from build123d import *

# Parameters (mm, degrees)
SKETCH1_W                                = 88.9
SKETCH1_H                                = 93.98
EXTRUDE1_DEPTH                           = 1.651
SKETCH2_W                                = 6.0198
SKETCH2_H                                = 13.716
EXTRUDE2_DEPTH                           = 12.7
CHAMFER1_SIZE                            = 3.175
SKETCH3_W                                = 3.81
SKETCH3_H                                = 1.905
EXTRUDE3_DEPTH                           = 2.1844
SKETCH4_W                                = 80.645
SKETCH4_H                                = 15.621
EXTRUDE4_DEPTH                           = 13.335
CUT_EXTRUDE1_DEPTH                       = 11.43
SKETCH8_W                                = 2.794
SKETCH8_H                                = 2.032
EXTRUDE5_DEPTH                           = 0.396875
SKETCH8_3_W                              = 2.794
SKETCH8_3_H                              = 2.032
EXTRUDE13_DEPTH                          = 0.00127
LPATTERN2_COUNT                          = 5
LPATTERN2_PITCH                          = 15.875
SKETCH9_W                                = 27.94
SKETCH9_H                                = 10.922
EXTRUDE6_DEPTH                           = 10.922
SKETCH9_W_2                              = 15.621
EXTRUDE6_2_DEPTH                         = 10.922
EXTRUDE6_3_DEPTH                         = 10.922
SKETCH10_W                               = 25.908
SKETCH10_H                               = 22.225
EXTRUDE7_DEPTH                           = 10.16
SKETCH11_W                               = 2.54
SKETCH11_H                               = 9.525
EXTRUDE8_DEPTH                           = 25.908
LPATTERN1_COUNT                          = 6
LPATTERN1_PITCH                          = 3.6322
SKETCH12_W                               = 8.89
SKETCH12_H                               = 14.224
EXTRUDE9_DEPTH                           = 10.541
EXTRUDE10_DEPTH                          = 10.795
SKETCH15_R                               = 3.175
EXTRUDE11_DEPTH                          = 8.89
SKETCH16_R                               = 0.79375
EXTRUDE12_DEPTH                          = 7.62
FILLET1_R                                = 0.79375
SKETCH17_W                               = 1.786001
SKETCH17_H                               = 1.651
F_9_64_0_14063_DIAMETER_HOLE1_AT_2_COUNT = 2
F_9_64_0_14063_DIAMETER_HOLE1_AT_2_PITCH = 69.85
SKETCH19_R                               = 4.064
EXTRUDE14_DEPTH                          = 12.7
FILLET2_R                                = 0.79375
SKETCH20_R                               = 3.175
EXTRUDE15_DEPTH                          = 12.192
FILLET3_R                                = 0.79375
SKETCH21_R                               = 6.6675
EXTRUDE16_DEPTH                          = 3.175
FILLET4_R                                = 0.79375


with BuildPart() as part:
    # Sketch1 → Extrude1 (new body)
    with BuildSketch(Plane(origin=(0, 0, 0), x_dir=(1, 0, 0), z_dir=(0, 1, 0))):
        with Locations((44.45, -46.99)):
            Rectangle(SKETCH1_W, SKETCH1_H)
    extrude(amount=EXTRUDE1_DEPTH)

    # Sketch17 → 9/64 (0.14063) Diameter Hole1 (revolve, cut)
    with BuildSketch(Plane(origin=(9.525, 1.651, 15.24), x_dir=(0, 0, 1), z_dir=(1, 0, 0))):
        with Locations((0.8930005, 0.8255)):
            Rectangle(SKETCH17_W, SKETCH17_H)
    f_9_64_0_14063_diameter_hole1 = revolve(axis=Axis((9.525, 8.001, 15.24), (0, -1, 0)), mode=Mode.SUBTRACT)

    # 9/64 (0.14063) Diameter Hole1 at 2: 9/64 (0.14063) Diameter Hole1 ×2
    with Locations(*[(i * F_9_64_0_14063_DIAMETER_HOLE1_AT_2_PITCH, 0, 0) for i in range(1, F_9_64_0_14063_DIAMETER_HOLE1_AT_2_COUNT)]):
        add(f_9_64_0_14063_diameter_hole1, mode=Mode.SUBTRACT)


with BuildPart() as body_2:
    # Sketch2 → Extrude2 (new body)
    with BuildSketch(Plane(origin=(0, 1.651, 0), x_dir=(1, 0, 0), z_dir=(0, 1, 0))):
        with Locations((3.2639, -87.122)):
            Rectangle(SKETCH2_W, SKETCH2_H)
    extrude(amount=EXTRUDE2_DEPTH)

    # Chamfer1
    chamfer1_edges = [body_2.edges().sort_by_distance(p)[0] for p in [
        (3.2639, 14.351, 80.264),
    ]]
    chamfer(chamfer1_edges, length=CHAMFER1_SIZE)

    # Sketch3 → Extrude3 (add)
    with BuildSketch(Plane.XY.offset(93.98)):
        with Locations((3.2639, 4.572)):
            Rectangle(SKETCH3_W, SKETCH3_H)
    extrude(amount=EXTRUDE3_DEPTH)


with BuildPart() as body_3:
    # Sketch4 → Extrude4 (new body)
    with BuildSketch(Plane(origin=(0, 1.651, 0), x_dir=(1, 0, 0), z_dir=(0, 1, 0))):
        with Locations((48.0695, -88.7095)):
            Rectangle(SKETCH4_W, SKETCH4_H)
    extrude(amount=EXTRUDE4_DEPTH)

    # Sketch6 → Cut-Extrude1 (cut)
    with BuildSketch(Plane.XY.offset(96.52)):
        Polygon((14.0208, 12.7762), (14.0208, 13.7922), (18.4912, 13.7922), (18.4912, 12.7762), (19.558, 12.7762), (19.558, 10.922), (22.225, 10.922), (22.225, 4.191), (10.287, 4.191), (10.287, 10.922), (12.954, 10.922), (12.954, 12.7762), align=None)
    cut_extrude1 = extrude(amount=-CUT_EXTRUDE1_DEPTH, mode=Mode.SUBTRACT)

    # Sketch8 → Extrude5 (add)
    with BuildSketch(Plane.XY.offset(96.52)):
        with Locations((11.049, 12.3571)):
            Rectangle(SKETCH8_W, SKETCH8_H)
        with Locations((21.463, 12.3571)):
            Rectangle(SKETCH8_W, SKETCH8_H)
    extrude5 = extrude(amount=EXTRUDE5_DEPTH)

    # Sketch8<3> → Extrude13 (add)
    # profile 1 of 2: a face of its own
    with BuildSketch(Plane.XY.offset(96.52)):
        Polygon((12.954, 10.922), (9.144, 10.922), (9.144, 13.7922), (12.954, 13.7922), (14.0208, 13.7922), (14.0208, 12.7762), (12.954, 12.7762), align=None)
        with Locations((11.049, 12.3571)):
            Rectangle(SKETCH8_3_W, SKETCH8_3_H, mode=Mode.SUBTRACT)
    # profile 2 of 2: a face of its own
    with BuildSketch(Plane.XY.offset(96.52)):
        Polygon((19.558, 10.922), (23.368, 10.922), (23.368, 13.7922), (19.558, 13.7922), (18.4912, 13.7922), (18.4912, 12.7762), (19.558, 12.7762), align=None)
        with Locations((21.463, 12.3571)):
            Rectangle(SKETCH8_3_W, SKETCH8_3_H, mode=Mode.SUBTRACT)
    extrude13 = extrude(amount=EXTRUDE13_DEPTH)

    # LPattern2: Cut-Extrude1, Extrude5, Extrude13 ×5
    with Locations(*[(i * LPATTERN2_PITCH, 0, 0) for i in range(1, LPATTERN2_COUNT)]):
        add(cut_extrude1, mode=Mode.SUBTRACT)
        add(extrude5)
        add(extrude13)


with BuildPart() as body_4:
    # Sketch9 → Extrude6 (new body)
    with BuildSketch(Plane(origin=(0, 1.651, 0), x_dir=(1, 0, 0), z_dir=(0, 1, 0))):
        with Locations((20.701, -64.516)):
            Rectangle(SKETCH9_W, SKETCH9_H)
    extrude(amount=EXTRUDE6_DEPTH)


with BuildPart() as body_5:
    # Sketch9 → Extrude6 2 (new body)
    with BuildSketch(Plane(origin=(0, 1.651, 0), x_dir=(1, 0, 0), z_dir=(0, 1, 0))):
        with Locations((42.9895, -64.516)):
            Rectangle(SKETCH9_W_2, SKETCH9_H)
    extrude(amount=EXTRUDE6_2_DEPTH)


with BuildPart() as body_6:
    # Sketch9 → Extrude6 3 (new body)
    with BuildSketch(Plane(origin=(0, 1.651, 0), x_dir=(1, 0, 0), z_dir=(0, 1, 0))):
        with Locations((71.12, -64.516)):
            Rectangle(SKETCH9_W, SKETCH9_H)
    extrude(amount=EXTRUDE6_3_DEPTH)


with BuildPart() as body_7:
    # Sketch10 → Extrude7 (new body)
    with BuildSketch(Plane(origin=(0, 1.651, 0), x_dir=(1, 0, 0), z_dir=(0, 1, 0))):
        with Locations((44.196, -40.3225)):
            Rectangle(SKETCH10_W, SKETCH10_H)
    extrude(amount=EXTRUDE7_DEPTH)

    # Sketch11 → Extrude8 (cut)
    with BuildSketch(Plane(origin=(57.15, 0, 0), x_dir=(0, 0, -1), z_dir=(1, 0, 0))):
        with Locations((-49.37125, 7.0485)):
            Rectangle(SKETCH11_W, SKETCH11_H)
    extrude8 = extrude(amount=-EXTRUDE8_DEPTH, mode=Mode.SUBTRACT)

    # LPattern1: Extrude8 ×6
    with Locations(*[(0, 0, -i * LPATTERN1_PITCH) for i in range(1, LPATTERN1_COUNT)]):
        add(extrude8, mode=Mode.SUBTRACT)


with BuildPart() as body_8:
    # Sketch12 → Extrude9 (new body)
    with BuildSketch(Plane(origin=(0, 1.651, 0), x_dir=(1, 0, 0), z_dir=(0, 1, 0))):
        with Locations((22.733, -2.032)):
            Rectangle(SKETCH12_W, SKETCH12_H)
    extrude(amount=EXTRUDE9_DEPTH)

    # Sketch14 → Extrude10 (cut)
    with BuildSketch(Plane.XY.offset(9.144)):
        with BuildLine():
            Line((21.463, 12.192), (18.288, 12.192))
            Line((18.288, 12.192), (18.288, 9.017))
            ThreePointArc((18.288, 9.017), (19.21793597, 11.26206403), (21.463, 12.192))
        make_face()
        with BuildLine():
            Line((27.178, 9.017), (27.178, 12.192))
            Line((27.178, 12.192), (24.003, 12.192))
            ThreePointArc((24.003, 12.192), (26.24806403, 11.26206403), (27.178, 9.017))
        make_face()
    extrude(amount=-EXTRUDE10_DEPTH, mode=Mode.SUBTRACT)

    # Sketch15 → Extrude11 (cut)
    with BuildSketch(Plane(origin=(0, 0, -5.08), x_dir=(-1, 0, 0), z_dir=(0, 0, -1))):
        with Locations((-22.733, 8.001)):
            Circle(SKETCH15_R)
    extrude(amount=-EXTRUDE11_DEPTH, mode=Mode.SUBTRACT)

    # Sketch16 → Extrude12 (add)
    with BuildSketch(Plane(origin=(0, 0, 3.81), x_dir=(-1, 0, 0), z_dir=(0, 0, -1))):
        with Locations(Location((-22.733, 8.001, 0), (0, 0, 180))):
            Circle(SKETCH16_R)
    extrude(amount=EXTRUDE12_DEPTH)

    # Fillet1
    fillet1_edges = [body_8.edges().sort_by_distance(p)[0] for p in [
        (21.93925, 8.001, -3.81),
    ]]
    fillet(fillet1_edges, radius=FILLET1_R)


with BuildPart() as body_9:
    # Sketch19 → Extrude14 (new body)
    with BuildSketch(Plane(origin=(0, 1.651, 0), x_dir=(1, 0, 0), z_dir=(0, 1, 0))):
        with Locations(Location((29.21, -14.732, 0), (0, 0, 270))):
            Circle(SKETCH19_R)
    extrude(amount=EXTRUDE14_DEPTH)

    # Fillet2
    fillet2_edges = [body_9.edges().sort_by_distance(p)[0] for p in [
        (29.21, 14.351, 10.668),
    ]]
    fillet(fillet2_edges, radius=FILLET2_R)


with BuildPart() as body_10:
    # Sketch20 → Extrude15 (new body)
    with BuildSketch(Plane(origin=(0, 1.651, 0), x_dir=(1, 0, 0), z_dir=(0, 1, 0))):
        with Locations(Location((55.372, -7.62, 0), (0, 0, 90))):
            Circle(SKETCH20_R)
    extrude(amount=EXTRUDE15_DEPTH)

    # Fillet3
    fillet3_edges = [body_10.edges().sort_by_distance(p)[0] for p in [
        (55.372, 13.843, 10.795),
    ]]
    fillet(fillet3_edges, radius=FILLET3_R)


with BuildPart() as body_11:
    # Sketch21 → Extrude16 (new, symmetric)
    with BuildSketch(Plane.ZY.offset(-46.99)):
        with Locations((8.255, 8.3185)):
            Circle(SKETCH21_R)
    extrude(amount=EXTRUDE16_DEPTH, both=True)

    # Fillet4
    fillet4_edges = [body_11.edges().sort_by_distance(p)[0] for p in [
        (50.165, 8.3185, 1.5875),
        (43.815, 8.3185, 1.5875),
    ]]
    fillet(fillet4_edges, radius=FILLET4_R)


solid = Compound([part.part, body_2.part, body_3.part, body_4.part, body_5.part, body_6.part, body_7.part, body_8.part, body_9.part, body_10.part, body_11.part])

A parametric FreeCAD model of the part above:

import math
import FreeCAD as App
import Part
import Sketcher

V = App.Vector
Q = App.Units.Quantity


def edges_at(feature, points):
    """Names of the edges that pass closest to the given points."""
    edges = feature.Shape.Edges
    near = lambda p: min(range(len(edges)), key=lambda i: edges[i].distToShape(Part.Vertex(*p))[0])
    return sorted({f"Edge{near(p) + 1}" for p in points})

doc = App.newDocument("Part")
body = doc.addObject("PartDesign::Body", "Body")

# Sketch on XZ plane
sketch1 = doc.addObject("Sketcher::SketchObject", "Sketch")
body.addObject(sketch1)
sketch1.AttachmentSupport = (doc.XZ_Plane, [""])
sketch1.MapMode = "FlatFace"
sketch1.addGeometry([
    Part.LineSegment(V(0, 0, 0), V(0, 94, 0)),
    Part.LineSegment(V(0, 94, 0), V(89, 94, 0)),
    Part.LineSegment(V(89, 94, 0), V(89, 0, 0)),
    Part.LineSegment(V(89, 0, 0), V(0, 0, 0)),
], False)
sketch1.addConstraint([
    Sketcher.Constraint("Coincident", 0, 2, 1, 1),
    Sketcher.Constraint("Coincident", 1, 2, 2, 1),
    Sketcher.Constraint("Coincident", 2, 2, 3, 1),
    Sketcher.Constraint("Coincident", 3, 2, 0, 1),
    Sketcher.Constraint("Vertical", 0),
    Sketcher.Constraint("Horizontal", 1),
    Sketcher.Constraint("Vertical", 2),
    Sketcher.Constraint("Horizontal", 3),
    Sketcher.Constraint("Coincident", 3, 2, -1, 1),
    Sketcher.Constraint("DistanceX", 1, 1, 1, 2, Q("3.5 in")),
    Sketcher.Constraint("DistanceY", 0, 1, 0, 2, Q("3.7 in")),
])
pad1 = doc.addObject("PartDesign::Pad", "Pad")
body.addObject(pad1)
pad1.Profile = sketch1
pad1.Length = Q("0.065 in")
pad1.Reversed = True

# Sketch on YZ plane
sketch2 = doc.addObject("Sketcher::SketchObject", "Sketch001")
body.addObject(sketch2)
sketch2.AttachmentSupport = (doc.YZ_Plane, [""])
sketch2.MapMode = "FlatFace"
sketch2.AttachmentOffset = App.Placement(V(0, 0, 0.375 * 25.4), App.Rotation())
sketch2.addGeometry([
    Part.LineSegment(V(0, 15.2, 0), V(1.7, 15.2, 0)),
    Part.LineSegment(V(1.7, 15.2, 0), V(1.7, 17, 0)),
    Part.LineSegment(V(1.7, 17, 0), V(0, 17, 0)),
    Part.LineSegment(V(0, 17, 0), V(0, 15.2, 0)),
], False)
sketch2.addGeometry(Part.LineSegment(V(1.7, 15.2, 0), V(0, 15.2, 0)), True)  # axis
sketch2.addConstraint([
    Sketcher.Constraint("Coincident", 0, 2, 1, 1),
    Sketcher.Constraint("Coincident", 1, 2, 2, 1),
    Sketcher.Constraint("Coincident", 2, 2, 3, 1),
    Sketcher.Constraint("Coincident", 3, 2, 0, 1),
    Sketcher.Constraint("Horizontal", 0),
    Sketcher.Constraint("Vertical", 1),
    Sketcher.Constraint("Horizontal", 2),
    Sketcher.Constraint("Vertical", 3),
    Sketcher.Constraint("Horizontal", 4),
    Sketcher.Constraint("Coincident", 4, 1, 0, 2),
    Sketcher.Constraint("PointOnObject", 2, 2, -2),
    Sketcher.Constraint("PointOnObject", 4, 2, -2),
    Sketcher.Constraint("DistanceY", -1, 1, 0, 2, Q("0.6 in")),
    Sketcher.Constraint("DistanceX", 0, 1, 0, 2, Q("0.065 in")),
    Sketcher.Constraint("DistanceY", 1, 1, 1, 2, 1.786001),
])
groove = doc.addObject("PartDesign::Groove", "Groove")
body.addObject(groove)
groove.Profile = sketch2
groove.ReferenceAxis = (sketch2, ["Axis0"])
groove.Angle = 360
doc.recompute()

linearpattern = doc.addObject("PartDesign::LinearPattern", "LinearPattern")
body.addObject(linearpattern)
linearpattern.Originals = [groove]
linearpattern.Direction = (doc.X_Axis, [""])
linearpattern.Mode = "offset"
linearpattern.Offset = Q("2.75 in")
linearpattern.Occurrences = 2
body.Tip = linearpattern
body2 = doc.addObject("PartDesign::Body", "Body001")

# Sketch on XZ plane
sketch3 = doc.addObject("Sketcher::SketchObject", "Sketch002")
body2.addObject(sketch3)
sketch3.AttachmentSupport = (doc.getObject("XZ_Plane001"), [""])
sketch3.MapMode = "FlatFace"
sketch3.AttachmentOffset = App.Placement(V(0, 0, -0.065 * 25.4), App.Rotation())
sketch3.addGeometry([
    Part.LineSegment(V(0, 80, 0), V(0, 94, 0)),
    Part.LineSegment(V(0, 94, 0), V(6, 94, 0)),
    Part.LineSegment(V(6, 94, 0), V(6, 80, 0)),
    Part.LineSegment(V(6, 80, 0), V(0, 80, 0)),
], False)
sketch3.addConstraint([
    Sketcher.Constraint("Coincident", 0, 2, 1, 1),
    Sketcher.Constraint("Coincident", 1, 2, 2, 1),
    Sketcher.Constraint("Coincident", 2, 2, 3, 1),
    Sketcher.Constraint("Coincident", 3, 2, 0, 1),
    Sketcher.Constraint("Vertical", 0),
    Sketcher.Constraint("Horizontal", 1),
    Sketcher.Constraint("Vertical", 2),
    Sketcher.Constraint("Horizontal", 3),
    Sketcher.Constraint("DistanceY", 0, 1, 0, 2, Q("0.54 in")),
    Sketcher.Constraint("DistanceY", -1, 1, 0, 2, Q("3.7 in")),
    Sketcher.Constraint("DistanceX", 1, 1, 1, 2, Q("0.237 in")),
    Sketcher.Constraint("DistanceX", -1, 1, 0, 2, Q("0.01 in")),
])
pad2 = doc.addObject("PartDesign::Pad", "Pad001")
body2.addObject(pad2)
pad2.Profile = sketch3
pad2.Length = Q("0.5 in")
pad2.Reversed = True
doc.recompute()

chamfer = doc.addObject("PartDesign::Chamfer", "Chamfer")
body2.addObject(chamfer)
chamfer.Base = (pad2, edges_at(pad2, [(3.264, 14.351, 80.264)]))
chamfer.Size = Q("0.125 in")

# Sketch on XY plane
sketch4 = doc.addObject("Sketcher::SketchObject", "Sketch003")
body2.addObject(sketch4)
sketch4.AttachmentSupport = (doc.getObject("XY_Plane001"), [""])
sketch4.MapMode = "FlatFace"
sketch4.AttachmentOffset = App.Placement(V(0, 0, 3.7 * 25.4), App.Rotation())
sketch4.addGeometry([
    Part.LineSegment(V(1.4, 5.5, 0), V(1.4, 3.6, 0)),
    Part.LineSegment(V(1.4, 3.6, 0), V(5.2, 3.6, 0)),
    Part.LineSegment(V(5.2, 3.6, 0), V(5.2, 5.5, 0)),
    Part.LineSegment(V(5.2, 5.5, 0), V(1.4, 5.5, 0)),
], False)
sketch4.addConstraint([
    Sketcher.Constraint("Coincident", 0, 2, 1, 1),
    Sketcher.Constraint("Coincident", 1, 2, 2, 1),
    Sketcher.Constraint("Coincident", 2, 2, 3, 1),
    Sketcher.Constraint("Coincident", 3, 2, 0, 1),
    Sketcher.Constraint("Vertical", 0),
    Sketcher.Constraint("Horizontal", 1),
    Sketcher.Constraint("Vertical", 2),
    Sketcher.Constraint("Horizontal", 3),
    Sketcher.Constraint("DistanceX", 1, 1, 1, 2, Q("0.15 in")),
    Sketcher.Constraint("DistanceY", 0, 2, 0, 1, Q("0.075 in")),
    Sketcher.Constraint("DistanceX", -1, 1, 0, 2, Q("0.0535 in")),
    Sketcher.Constraint("DistanceY", -1, 1, 0, 2, Q("0.1425 in")),
])
pad3 = doc.addObject("PartDesign::Pad", "Pad002")
body2.addObject(pad3)
pad3.Profile = sketch4
pad3.Length = Q("0.086 in")
body3 = doc.addObject("PartDesign::Body", "Body002")

# Sketch on XZ plane
sketch5 = doc.addObject("Sketcher::SketchObject", "Sketch004")
body3.addObject(sketch5)
sketch5.AttachmentSupport = (doc.getObject("XZ_Plane002"), [""])
sketch5.MapMode = "FlatFace"
sketch5.AttachmentOffset = App.Placement(V(0, 0, -0.065 * 25.4), App.Rotation())
sketch5.addGeometry([
    Part.LineSegment(V(8, 81, 0), V(8, 97, 0)),
    Part.LineSegment(V(8, 97, 0), V(88, 97, 0)),
    Part.LineSegment(V(88, 97, 0), V(88, 81, 0)),
    Part.LineSegment(V(88, 81, 0), V(8, 81, 0)),
], False)
sketch5.addConstraint([
    Sketcher.Constraint("Coincident", 0, 2, 1, 1),
    Sketcher.Constraint("Coincident", 1, 2, 2, 1),
    Sketcher.Constraint("Coincident", 2, 2, 3, 1),
    Sketcher.Constraint("Coincident", 3, 2, 0, 1),
    Sketcher.Constraint("Vertical", 0),
    Sketcher.Constraint("Horizontal", 1),
    Sketcher.Constraint("Vertical", 2),
    Sketcher.Constraint("Horizontal", 3),
    Sketcher.Constraint("DistanceY", -1, 1, 0, 2, Q("3.8 in")),
    Sketcher.Constraint("DistanceX", 1, 1, 1, 2, Q("3.175 in")),
    Sketcher.Constraint("DistanceY", 0, 1, 0, 2, Q("0.615 in")),
    Sketcher.Constraint("DistanceX", -1, 1, 1, 2, Q("3.48 in")),
])
pad4 = doc.addObject("PartDesign::Pad", "Pad003")
body3.addObject(pad4)
pad4.Profile = sketch5
pad4.Length = Q("0.525 in")
pad4.Reversed = True

# Sketch on XY plane
sketch6 = doc.addObject("Sketcher::SketchObject", "Sketch005")
body3.addObject(sketch6)
sketch6.AttachmentSupport = (doc.getObject("XY_Plane002"), [""])
sketch6.MapMode = "FlatFace"
sketch6.AttachmentOffset = App.Placement(V(0, 0, 3.8 * 25.4), App.Rotation())
sketch6.addGeometry([
    Part.LineSegment(V(14, 13.8, 0), V(14, 12.8, 0)),  # 0
    Part.LineSegment(V(14, 12.8, 0), V(13, 12.8, 0)),  # 1
    Part.LineSegment(V(13, 12.8, 0), V(13, 10.9, 0)),  # 2
    Part.LineSegment(V(13, 10.9, 0), V(10.3, 10.9, 0)),  # 3
    Part.LineSegment(V(10.3, 10.9, 0), V(10.3, 4.2, 0)),  # 4
    Part.LineSegment(V(10.3, 4.2, 0), V(22.2, 4.2, 0)),  # 5
    Part.LineSegment(V(22.2, 4.2, 0), V(22.2, 10.9, 0)),  # 6
    Part.LineSegment(V(22.2, 10.9, 0), V(19.6, 10.9, 0)),  # 7
    Part.LineSegment(V(19.6, 10.9, 0), V(19.6, 12.8, 0)),  # 8
    Part.LineSegment(V(19.6, 12.8, 0), V(18.5, 12.8, 0)),  # 9
    Part.LineSegment(V(18.5, 12.8, 0), V(18.5, 13.8, 0)),  # 10
    Part.LineSegment(V(18.5, 13.8, 0), V(14, 13.8, 0)),  # 11
], False)
sketch6.addConstraint([
    Sketcher.Constraint("Coincident", 0, 2, 1, 1),
    Sketcher.Constraint("Coincident", 1, 2, 2, 1),
    Sketcher.Constraint("Coincident", 2, 2, 3, 1),
    Sketcher.Constraint("Coincident", 3, 2, 4, 1),
    Sketcher.Constraint("Coincident", 4, 2, 5, 1),
    Sketcher.Constraint("Coincident", 5, 2, 6, 1),
    Sketcher.Constraint("Coincident", 6, 2, 7, 1),
    Sketcher.Constraint("Coincident", 7, 2, 8, 1),
    Sketcher.Constraint("Coincident", 8, 2, 9, 1),
    Sketcher.Constraint("Coincident", 9, 2, 10, 1),
    Sketcher.Constraint("Coincident", 10, 2, 11, 1),
    Sketcher.Constraint("Coincident", 11, 2, 0, 1),
    Sketcher.Constraint("Vertical", 0),
    Sketcher.Constraint("Horizontal", 1),
    Sketcher.Constraint("Vertical", 2),
    Sketcher.Constraint("Horizontal", 3),
    Sketcher.Constraint("Vertical", 4),
    Sketcher.Constraint("Horizontal", 5),
    Sketcher.Constraint("Vertical", 6),
    Sketcher.Constraint("Horizontal", 7),
    Sketcher.Constraint("Vertical", 8),
    Sketcher.Constraint("Horizontal", 9),
    Sketcher.Constraint("Vertical", 10),
    Sketcher.Constraint("Horizontal", 11),
    Sketcher.Constraint("Horizontal", 3, 2, 6, 2),
    Sketcher.Constraint("Horizontal", 1, 2, 8, 2),
    Sketcher.Constraint("Equal", 3, 7),
    Sketcher.Constraint("Equal", 1, 9),
    Sketcher.Constraint("DistanceX", 5, 1, 5, 2, Q("0.47 in")),
    Sketcher.Constraint("DistanceY", 0, 2, 0, 1, Q("0.04 in")),
    Sketcher.Constraint("DistanceX", 1, 2, 1, 1, Q("0.042 in")),
    Sketcher.Constraint("DistanceX", 3, 2, 3, 1, Q("0.105 in")),
    Sketcher.Constraint("DistanceY", 2, 2, 2, 1, Q("0.073 in")),
    Sketcher.Constraint("DistanceY", 4, 2, 4, 1, Q("0.265 in")),
    Sketcher.Constraint("DistanceX", -1, 1, 1, 2, Q("0.51 in")),
    Sketcher.Constraint("DistanceY", -1, 1, 2, 2, Q("0.43 in")),
])
pocket1 = doc.addObject("PartDesign::Pocket", "Pocket")
body3.addObject(pocket1)
pocket1.Profile = sketch6
pocket1.Length = Q("0.45 in")

# Sketch on XY plane
sketch7 = doc.addObject("Sketcher::SketchObject", "Sketch006")
body3.addObject(sketch7)
sketch7.AttachmentSupport = (doc.getObject("XY_Plane002"), [""])
sketch7.MapMode = "FlatFace"
sketch7.AttachmentOffset = App.Placement(V(0, 0, 3.8 * 25.4), App.Rotation())
sketch7.addGeometry([
    Part.LineSegment(V(9.7, 13.4, 0), V(9.7, 11.3, 0)),  # 0
    Part.LineSegment(V(9.7, 11.3, 0), V(12.4, 11.3, 0)),  # 1
    Part.LineSegment(V(12.4, 11.3, 0), V(12.4, 13.4, 0)),  # 2
    Part.LineSegment(V(12.4, 13.4, 0), V(9.7, 13.4, 0)),  # 3
    Part.LineSegment(V(20.1, 13.4, 0), V(20.1, 11.3, 0)),  # 4
    Part.LineSegment(V(20.1, 11.3, 0), V(22.9, 11.3, 0)),  # 5
    Part.LineSegment(V(22.9, 11.3, 0), V(22.9, 13.4, 0)),  # 6
    Part.LineSegment(V(22.9, 13.4, 0), V(20.1, 13.4, 0)),  # 7
], False)
sketch7.addConstraint([
    Sketcher.Constraint("Coincident", 0, 2, 1, 1),
    Sketcher.Constraint("Coincident", 1, 2, 2, 1),
    Sketcher.Constraint("Coincident", 2, 2, 3, 1),
    Sketcher.Constraint("Coincident", 3, 2, 0, 1),
    Sketcher.Constraint("Coincident", 4, 2, 5, 1),
    Sketcher.Constraint("Coincident", 5, 2, 6, 1),
    Sketcher.Constraint("Coincident", 6, 2, 7, 1),
    Sketcher.Constraint("Coincident", 7, 2, 4, 1),
    Sketcher.Constraint("Vertical", 0),
    Sketcher.Constraint("Horizontal", 1),
    Sketcher.Constraint("Vertical", 2),
    Sketcher.Constraint("Horizontal", 3),
    Sketcher.Constraint("Vertical", 4),
    Sketcher.Constraint("Horizontal", 5),
    Sketcher.Constraint("Vertical", 6),
    Sketcher.Constraint("Horizontal", 7),
    Sketcher.Constraint("Horizontal", 1, 2, 4, 2),
    Sketcher.Constraint("Horizontal", 3, 2, 6, 2),
    Sketcher.Constraint("Equal", 3, 5),
    Sketcher.Constraint("DistanceX", 1, 1, 1, 2, Q("0.11 in")),
    Sketcher.Constraint("DistanceY", 0, 2, 0, 1, Q("0.08 in")),
    Sketcher.Constraint("DistanceX", -1, 1, 5, 2, Q("0.9 in")),
    Sketcher.Constraint("DistanceX", 1, 2, 4, 2, Q("0.3 in")),
    Sketcher.Constraint("DistanceY", -1, 1, 0, 2, Q("0.4465 in")),
])
pad5 = doc.addObject("PartDesign::Pad", "Pad004")
body3.addObject(pad5)
pad5.Profile = sketch7
pad5.Length = Q("0.015625 in")

# Sketch on XY plane
sketch8 = doc.addObject("Sketcher::SketchObject", "Sketch007")
body3.addObject(sketch8)
sketch8.AttachmentSupport = (doc.getObject("XY_Plane002"), [""])
sketch8.MapMode = "FlatFace"
sketch8.AttachmentOffset = App.Placement(V(0, 0, 3.8 * 25.4), App.Rotation())
sketch8.addGeometry([
    Part.LineSegment(V(9.1, 10.9, 0), V(13, 10.9, 0)),  # 0
    Part.LineSegment(V(13, 10.9, 0), V(13, 12.8, 0)),  # 1
    Part.LineSegment(V(13, 12.8, 0), V(14, 12.8, 0)),  # 2
    Part.LineSegment(V(14, 12.8, 0), V(14, 13.8, 0)),  # 3
    Part.LineSegment(V(14, 13.8, 0), V(9.1, 13.8, 0)),  # 4
    Part.LineSegment(V(9.1, 13.8, 0), V(9.1, 10.9, 0)),  # 5
    Part.LineSegment(V(9.7, 11.3, 0), V(9.7, 13.4, 0)),  # 6
    Part.LineSegment(V(9.7, 13.4, 0), V(12.4, 13.4, 0)),  # 7
    Part.LineSegment(V(12.4, 13.4, 0), V(12.4, 11.3, 0)),  # 8
    Part.LineSegment(V(12.4, 11.3, 0), V(9.7, 11.3, 0)),  # 9
    Part.LineSegment(V(19.6, 10.9, 0), V(23.4, 10.9, 0)),  # 10
    Part.LineSegment(V(23.4, 10.9, 0), V(23.4, 13.8, 0)),  # 11
    Part.LineSegment(V(23.4, 13.8, 0), V(18.5, 13.8, 0)),  # 12
    Part.LineSegment(V(18.5, 13.8, 0), V(18.5, 12.8, 0)),  # 13
    Part.LineSegment(V(18.5, 12.8, 0), V(19.6, 12.8, 0)),  # 14
    Part.LineSegment(V(19.6, 12.8, 0), V(19.6, 10.9, 0)),  # 15
    Part.LineSegment(V(22.9, 11.3, 0), V(20.1, 11.3, 0)),  # 16
    Part.LineSegment(V(20.1, 11.3, 0), V(20.1, 13.4, 0)),  # 17
    Part.LineSegment(V(20.1, 13.4, 0), V(22.9, 13.4, 0)),  # 18
    Part.LineSegment(V(22.9, 13.4, 0), V(22.9, 11.3, 0)),  # 19
], False)
sketch8.addConstraint([
    Sketcher.Constraint("Coincident", 0, 2, 1, 1),
    Sketcher.Constraint("Coincident", 1, 2, 2, 1),
    Sketcher.Constraint("Coincident", 2, 2, 3, 1),
    Sketcher.Constraint("Coincident", 3, 2, 4, 1),
    Sketcher.Constraint("Coincident", 4, 2, 5, 1),
    Sketcher.Constraint("Coincident", 5, 2, 0, 1),
    Sketcher.Constraint("Coincident", 6, 2, 7, 1),
    Sketcher.Constraint("Coincident", 7, 2, 8, 1),
    Sketcher.Constraint("Coincident", 8, 2, 9, 1),
    Sketcher.Constraint("Coincident", 9, 2, 6, 1),
    Sketcher.Constraint("Coincident", 10, 2, 11, 1),
    Sketcher.Constraint("Coincident", 11, 2, 12, 1),
    Sketcher.Constraint("Coincident", 12, 2, 13, 1),
    Sketcher.Constraint("Coincident", 13, 2, 14, 1),
    Sketcher.Constraint("Coincident", 14, 2, 15, 1),
    Sketcher.Constraint("Coincident", 15, 2, 10, 1),
    Sketcher.Constraint("Coincident", 16, 2, 17, 1),
    Sketcher.Constraint("Coincident", 17, 2, 18, 1),
    Sketcher.Constraint("Coincident", 18, 2, 19, 1),
    Sketcher.Constraint("Coincident", 19, 2, 16, 1),
    Sketcher.Constraint("Horizontal", 0),
    Sketcher.Constraint("Vertical", 1),
    Sketcher.Constraint("Horizontal", 2),
    Sketcher.Constraint("Vertical", 3),
    Sketcher.Constraint("Horizontal", 4),
    Sketcher.Constraint("Vertical", 5),
    Sketcher.Constraint("Vertical", 6),
    Sketcher.Constraint("Horizontal", 7),
    Sketcher.Constraint("Vertical", 8),
    Sketcher.Constraint("Horizontal", 9),
    Sketcher.Constraint("Horizontal", 10),
    Sketcher.Constraint("Vertical", 11),
    Sketcher.Constraint("Horizontal", 12),
    Sketcher.Constraint("Vertical", 13),
    Sketcher.Constraint("Horizontal", 14),
    Sketcher.Constraint("Vertical", 15),
    Sketcher.Constraint("Horizontal", 16),
    Sketcher.Constraint("Vertical", 17),
    Sketcher.Constraint("Horizontal", 18),
    Sketcher.Constraint("Vertical", 19),
    Sketcher.Constraint("Horizontal", 5, 2, 10, 2),
    Sketcher.Constraint("Horizontal", 4, 2, 11, 2),
    Sketcher.Constraint("Horizontal", 2, 2, 13, 2),
    Sketcher.Constraint("Horizontal", 9, 2, 16, 2),
    Sketcher.Constraint("Horizontal", 7, 2, 17, 2),
    Sketcher.Constraint("Equal", 0, 10),
    Sketcher.Constraint("Equal", 4, 12),
    Sketcher.Constraint("Equal", 9, 16),
    Sketcher.Constraint("DistanceX", 0, 1, 0, 2, Q("0.15 in")),
    Sketcher.Constraint("DistanceX", 7, 1, 7, 2, Q("0.11 in")),
    Sketcher.Constraint("DistanceY", 3, 1, 3, 2, Q("0.04 in")),
    Sketcher.Constraint("DistanceY", 6, 1, 6, 2, Q("0.08 in")),
    Sketcher.Constraint("DistanceX", -1, 1, 18, 2, Q("0.9 in")),
    Sketcher.Constraint("DistanceX", 2, 1, 2, 2, Q("0.042 in")),
    Sketcher.Constraint("DistanceY", 1, 1, 1, 2, Q("0.073 in")),
    Sketcher.Constraint("DistanceX", -1, 1, 0, 2, Q("0.51 in")),
    Sketcher.Constraint("DistanceY", -1, 1, 0, 2, Q("0.43 in")),
    Sketcher.Constraint("DistanceX", -1, 1, 6, 2, Q("0.38 in")),
    Sketcher.Constraint("DistanceX", -1, 1, 10, 2, Q("0.92 in")),
    Sketcher.Constraint("DistanceY", -1, 1, 6, 2, Q("0.5265 in")),
])
pad6 = doc.addObject("PartDesign::Pad", "Pad005")
body3.addObject(pad6)
pad6.Profile = sketch8
pad6.Length = 0.00127
doc.recompute()

linearpattern2 = doc.addObject("PartDesign::LinearPattern", "LinearPattern001")
body3.addObject(linearpattern2)
linearpattern2.Originals = [pocket1, pad5, pad6]
linearpattern2.Direction = (doc.getObject("X_Axis002"), [""])
linearpattern2.Mode = "offset"
linearpattern2.Offset = Q("0.625 in")
linearpattern2.Occurrences = 5
body3.Tip = linearpattern2
body4 = doc.addObject("PartDesign::Body", "Body003")

# Sketch on XZ plane
sketch9 = doc.addObject("Sketcher::SketchObject", "Sketch008")
body4.addObject(sketch9)
sketch9.AttachmentSupport = (doc.getObject("XZ_Plane003"), [""])
sketch9.MapMode = "FlatFace"
sketch9.AttachmentOffset = App.Placement(V(0, 0, -0.065 * 25.4), App.Rotation())
sketch9.addGeometry([
    Part.LineSegment(V(7, 59, 0), V(7, 70, 0)),
    Part.LineSegment(V(7, 70, 0), V(35, 70, 0)),
    Part.LineSegment(V(35, 70, 0), V(35, 59, 0)),
    Part.LineSegment(V(35, 59, 0), V(7, 59, 0)),
], False)
sketch9.addConstraint([
    Sketcher.Constraint("Coincident", 0, 2, 1, 1),
    Sketcher.Constraint("Coincident", 1, 2, 2, 1),
    Sketcher.Constraint("Coincident", 2, 2, 3, 1),
    Sketcher.Constraint("Coincident", 3, 2, 0, 1),
    Sketcher.Constraint("Vertical", 0),
    Sketcher.Constraint("Horizontal", 1),
    Sketcher.Constraint("Vertical", 2),
    Sketcher.Constraint("Horizontal", 3),
    Sketcher.Constraint("DistanceX", 1, 1, 1, 2, Q("1.1 in")),
    Sketcher.Constraint("DistanceY", 0, 1, 0, 2, Q("0.43 in")),
    Sketcher.Constraint("DistanceX", -1, 1, 0, 2, Q("0.265 in")),
    Sketcher.Constraint("DistanceY", -1, 1, 0, 2, Q("2.755 in")),
])
pad7 = doc.addObject("PartDesign::Pad", "Pad006")
body4.addObject(pad7)
pad7.Profile = sketch9
pad7.Length = Q("0.43 in")
pad7.Reversed = True
body5 = doc.addObject("PartDesign::Body", "Body004")

# Sketch on XZ plane
sketch10 = doc.addObject("Sketcher::SketchObject", "Sketch009")
body5.addObject(sketch10)
sketch10.AttachmentSupport = (doc.getObject("XZ_Plane004"), [""])
sketch10.MapMode = "FlatFace"
sketch10.AttachmentOffset = App.Placement(V(0, 0, -0.065 * 25.4), App.Rotation())
sketch10.addGeometry([
    Part.LineSegment(V(35, 59, 0), V(35, 70, 0)),
    Part.LineSegment(V(35, 70, 0), V(51, 70, 0)),
    Part.LineSegment(V(51, 70, 0), V(51, 59, 0)),
    Part.LineSegment(V(51, 59, 0), V(35, 59, 0)),
], False)
sketch10.addConstraint([
    Sketcher.Constraint("Coincident", 0, 2, 1, 1),
    Sketcher.Constraint("Coincident", 1, 2, 2, 1),
    Sketcher.Constraint("Coincident", 2, 2, 3, 1),
    Sketcher.Constraint("Coincident", 3, 2, 0, 1),
    Sketcher.Constraint("Vertical", 0),
    Sketcher.Constraint("Horizontal", 1),
    Sketcher.Constraint("Vertical", 2),
    Sketcher.Constraint("Horizontal", 3),
    Sketcher.Constraint("DistanceX", -1, 1, 1, 2, Q("2 in")),
    Sketcher.Constraint("DistanceY", 0, 1, 0, 2, Q("0.43 in")),
    Sketcher.Constraint("DistanceX", 1, 1, 1, 2, Q("0.615 in")),
    Sketcher.Constraint("DistanceY", -1, 1, 0, 2, Q("2.755 in")),
])
pad8 = doc.addObject("PartDesign::Pad", "Pad007")
body5.addObject(pad8)
pad8.Profile = sketch10
pad8.Length = Q("0.43 in")
pad8.Reversed = True
body6 = doc.addObject("PartDesign::Body", "Body005")

# Sketch on XZ plane
sketch11 = doc.addObject("Sketcher::SketchObject", "Sketch010")
body6.addObject(sketch11)
sketch11.AttachmentSupport = (doc.getObject("XZ_Plane005"), [""])
sketch11.MapMode = "FlatFace"
sketch11.AttachmentOffset = App.Placement(V(0, 0, -0.065 * 25.4), App.Rotation())
sketch11.addGeometry([
    Part.LineSegment(V(57, 59, 0), V(57, 70, 0)),
    Part.LineSegment(V(57, 70, 0), V(85, 70, 0)),
    Part.LineSegment(V(85, 70, 0), V(85, 59, 0)),
    Part.LineSegment(V(85, 59, 0), V(57, 59, 0)),
], False)
sketch11.addConstraint([
    Sketcher.Constraint("Coincident", 0, 2, 1, 1),
    Sketcher.Constraint("Coincident", 1, 2, 2, 1),
    Sketcher.Constraint("Coincident", 2, 2, 3, 1),
    Sketcher.Constraint("Coincident", 3, 2, 0, 1),
    Sketcher.Constraint("Vertical", 0),
    Sketcher.Constraint("Horizontal", 1),
    Sketcher.Constraint("Vertical", 2),
    Sketcher.Constraint("Horizontal", 3),
    Sketcher.Constraint("DistanceX", 1, 1, 1, 2, Q("1.1 in")),
    Sketcher.Constraint("DistanceY", 0, 1, 0, 2, Q("0.43 in")),
    Sketcher.Constraint("DistanceX", -1, 1, 0, 2, Q("2.25 in")),
    Sketcher.Constraint("DistanceY", -1, 1, 0, 2, Q("2.755 in")),
])
pad9 = doc.addObject("PartDesign::Pad", "Pad008")
body6.addObject(pad9)
pad9.Profile = sketch11
pad9.Length = Q("0.43 in")
pad9.Reversed = True
body7 = doc.addObject("PartDesign::Body", "Body006")

# Sketch on XZ plane
sketch12 = doc.addObject("Sketcher::SketchObject", "Sketch011")
body7.addObject(sketch12)
sketch12.AttachmentSupport = (doc.getObject("XZ_Plane006"), [""])
sketch12.MapMode = "FlatFace"
sketch12.AttachmentOffset = App.Placement(V(0, 0, -0.065 * 25.4), App.Rotation())
sketch12.addGeometry([
    Part.LineSegment(V(31, 29, 0), V(31, 51, 0)),
    Part.LineSegment(V(31, 51, 0), V(57, 51, 0)),
    Part.LineSegment(V(57, 51, 0), V(57, 29, 0)),
    Part.LineSegment(V(57, 29, 0), V(31, 29, 0)),
], False)
sketch12.addConstraint([
    Sketcher.Constraint("Coincident", 0, 2, 1, 1),
    Sketcher.Constraint("Coincident", 1, 2, 2, 1),
    Sketcher.Constraint("Coincident", 2, 2, 3, 1),
    Sketcher.Constraint("Coincident", 3, 2, 0, 1),
    Sketcher.Constraint("Vertical", 0),
    Sketcher.Constraint("Horizontal", 1),
    Sketcher.Constraint("Vertical", 2),
    Sketcher.Constraint("Horizontal", 3),
    Sketcher.Constraint("DistanceX", 1, 1, 1, 2, Q("1.02 in")),
    Sketcher.Constraint("DistanceY", 0, 1, 0, 2, Q("0.875 in")),
    Sketcher.Constraint("DistanceX", -1, 1, 0, 2, Q("1.23 in")),
    Sketcher.Constraint("DistanceY", -1, 1, 2, 2, Q("1.15 in")),
])
pad10 = doc.addObject("PartDesign::Pad", "Pad009")
body7.addObject(pad10)
pad10.Profile = sketch12
pad10.Length = Q("0.4 in")
pad10.Reversed = True

# Sketch on YZ plane
sketch13 = doc.addObject("Sketcher::SketchObject", "Sketch012")
body7.addObject(sketch13)
sketch13.AttachmentSupport = (doc.getObject("YZ_Plane006"), [""])
sketch13.MapMode = "FlatFace"
sketch13.AttachmentOffset = App.Placement(V(0, 0, 2.25 * 25.4), App.Rotation())
sketch13.addGeometry([
    Part.LineSegment(V(11.8, 50.6, 0), V(2.3, 50.6, 0)),
    Part.LineSegment(V(2.3, 50.6, 0), V(2.3, 48.1, 0)),
    Part.LineSegment(V(2.3, 48.1, 0), V(11.8, 48.1, 0)),
    Part.LineSegment(V(11.8, 48.1, 0), V(11.8, 50.6, 0)),
], False)
sketch13.addConstraint([
    Sketcher.Constraint("Coincident", 0, 2, 1, 1),
    Sketcher.Constraint("Coincident", 1, 2, 2, 1),
    Sketcher.Constraint("Coincident", 2, 2, 3, 1),
    Sketcher.Constraint("Coincident", 3, 2, 0, 1),
    Sketcher.Constraint("Horizontal", 0),
    Sketcher.Constraint("Vertical", 1),
    Sketcher.Constraint("Horizontal", 2),
    Sketcher.Constraint("Vertical", 3),
    Sketcher.Constraint("DistanceY", 1, 2, 1, 1, Q("0.1 in")),
    Sketcher.Constraint("DistanceX", 0, 2, 0, 1, Q("0.375 in")),
    Sketcher.Constraint("DistanceX", -1, 1, 0, 2, Q("0.09 in")),
    Sketcher.Constraint("DistanceY", -1, 1, 0, 2, 50.64125),
])
pocket2 = doc.addObject("PartDesign::Pocket", "Pocket001")
body7.addObject(pocket2)
pocket2.Profile = sketch13
pocket2.Length = Q("1.02 in")
doc.recompute()

linearpattern3 = doc.addObject("PartDesign::LinearPattern", "LinearPattern002")
body7.addObject(linearpattern3)
linearpattern3.Originals = [pocket2]
linearpattern3.Direction = (doc.getObject("Z_Axis006"), [""])
linearpattern3.Mode = "offset"
linearpattern3.Offset = Q("0.143 in")
linearpattern3.Occurrences = 6
linearpattern3.Reversed = True
body7.Tip = linearpattern3
body8 = doc.addObject("PartDesign::Body", "Body007")

# Sketch on XZ plane
sketch14 = doc.addObject("Sketcher::SketchObject", "Sketch013")
body8.addObject(sketch14)
sketch14.AttachmentSupport = (doc.getObject("XZ_Plane007"), [""])
sketch14.MapMode = "FlatFace"
sketch14.AttachmentOffset = App.Placement(V(0, 0, -0.065 * 25.4), App.Rotation())
sketch14.addGeometry([
    Part.LineSegment(V(18, -5, 0), V(18, 9, 0)),
    Part.LineSegment(V(18, 9, 0), V(27, 9, 0)),
    Part.LineSegment(V(27, 9, 0), V(27, -5, 0)),
    Part.LineSegment(V(27, -5, 0), V(18, -5, 0)),
], False)
sketch14.addConstraint([
    Sketcher.Constraint("Coincident", 0, 2, 1, 1),
    Sketcher.Constraint("Coincident", 1, 2, 2, 1),
    Sketcher.Constraint("Coincident", 2, 2, 3, 1),
    Sketcher.Constraint("Coincident", 3, 2, 0, 1),
    Sketcher.Constraint("Vertical", 0),
    Sketcher.Constraint("Horizontal", 1),
    Sketcher.Constraint("Vertical", 2),
    Sketcher.Constraint("Horizontal", 3),
    Sketcher.Constraint("DistanceX", 1, 1, 1, 2, Q("0.35 in")),
    Sketcher.Constraint("DistanceY", 0, 1, 0, 2, Q("0.56 in")),
    Sketcher.Constraint("DistanceY", 2, 2, -1, 1, Q("0.2 in")),
    Sketcher.Constraint("DistanceX", -1, 1, 0, 2, Q("0.72 in")),
])
pad11 = doc.addObject("PartDesign::Pad", "Pad010")
body8.addObject(pad11)
pad11.Profile = sketch14
pad11.Length = Q("0.415 in")
pad11.Reversed = True

# Sketch on XY plane
sketch15 = doc.addObject("Sketcher::SketchObject", "Sketch014")
body8.addObject(sketch15)
sketch15.AttachmentSupport = (doc.getObject("XY_Plane007"), [""])
sketch15.MapMode = "FlatFace"
sketch15.AttachmentOffset = App.Placement(V(0, 0, 0.36 * 25.4), App.Rotation())
sketch15.addGeometry([
    Part.LineSegment(V(21.5, 12.2, 0), V(18.3, 12.2, 0)),  # 0
    Part.LineSegment(V(18.3, 12.2, 0), V(18.3, 9, 0)),  # 1
    Part.ArcOfCircle(Part.Circle(V(21.5, 9, 0), V(0, 0, 1), 3.2), math.radians(90), math.radians(180)),  # 2
    Part.LineSegment(V(27.2, 9, 0), V(27.2, 12.2, 0)),  # 3
    Part.LineSegment(V(27.2, 12.2, 0), V(24, 12.2, 0)),  # 4
    Part.ArcOfCircle(Part.Circle(V(24, 9, 0), V(0, 0, 1), 3.2), math.radians(0), math.radians(90)),  # 5
], False)
sketch15.addConstraint([
    Sketcher.Constraint("Coincident", 0, 2, 1, 1),
    Sketcher.Constraint("Tangent", 1, 2, 2, 2),
    Sketcher.Constraint("Tangent", 2, 1, 0, 1),
    Sketcher.Constraint("Coincident", 3, 2, 4, 1),
    Sketcher.Constraint("Tangent", 4, 2, 5, 2),
    Sketcher.Constraint("Tangent", 5, 1, 3, 1),
    Sketcher.Constraint("Horizontal", 0),
    Sketcher.Constraint("Vertical", 1),
    Sketcher.Constraint("Vertical", 3),
    Sketcher.Constraint("Horizontal", 4),
    Sketcher.Constraint("Equal", 2, 5),
    Sketcher.Constraint("Horizontal", 2, 3, 5, 3),
    Sketcher.Constraint("Radius", 2, Q("0.125 in")),
    Sketcher.Constraint("DistanceX", 2, 3, 5, 3, Q("0.1 in")),
    Sketcher.Constraint("DistanceX", -1, 1, 0, 2, Q("0.72 in")),
    Sketcher.Constraint("DistanceY", -1, 1, 0, 2, Q("0.48 in")),
])
pocket3 = doc.addObject("PartDesign::Pocket", "Pocket002")
body8.addObject(pocket3)
pocket3.Profile = sketch15
pocket3.Length = Q("0.425 in")

# Sketch on XY plane
sketch16 = doc.addObject("Sketcher::SketchObject", "Sketch015")
body8.addObject(sketch16)
sketch16.AttachmentSupport = (doc.getObject("XY_Plane007"), [""])
sketch16.MapMode = "FlatFace"
sketch16.AttachmentOffset = App.Placement(V(0, 0, -0.2 * 25.4), App.Rotation())
sketch16.addGeometry(Part.Circle(V(22.7, 8, 0), V(0, 0, 1), 3.2), False)
sketch16.addConstraint([
    Sketcher.Constraint("Diameter", 0, Q("0.25 in")),
    Sketcher.Constraint("DistanceX", -1, 1, 0, 3, Q("0.895 in")),
    Sketcher.Constraint("DistanceY", -1, 1, 0, 3, Q("0.315 in")),
])
pocket4 = doc.addObject("PartDesign::Pocket", "Pocket003")
body8.addObject(pocket4)
pocket4.Profile = sketch16
pocket4.Length = Q("0.35 in")
pocket4.Reversed = True

# Sketch on XY plane
sketch17 = doc.addObject("Sketcher::SketchObject", "Sketch016")
body8.addObject(sketch17)
sketch17.AttachmentSupport = (doc.getObject("XY_Plane007"), [""])
sketch17.MapMode = "FlatFace"
sketch17.AttachmentOffset = App.Placement(V(0, 0, 0.15 * 25.4), App.Rotation())
sketch17.addGeometry(Part.Circle(V(22.7, 8, 0), V(0, 0, 1), 0.8), False)
sketch17.addConstraint([
    Sketcher.Constraint("Diameter", 0, Q("0.0625 in")),
    Sketcher.Constraint("DistanceX", -1, 1, 0, 3, Q("0.895 in")),
    Sketcher.Constraint("DistanceY", -1, 1, 0, 3, Q("0.315 in")),
])
pad12 = doc.addObject("PartDesign::Pad", "Pad011")
body8.addObject(pad12)
pad12.Profile = sketch17
pad12.Length = Q("0.3 in")
pad12.Reversed = True
doc.recompute()

fillet = doc.addObject("PartDesign::Fillet", "Fillet")
body8.addObject(fillet)
fillet.Base = (pad12, edges_at(pad12, [(21.939, 8.001, -3.81)]))
fillet.Radius = Q("0.03125 in")
body9 = doc.addObject("PartDesign::Body", "Body008")

# Sketch on XZ plane
sketch18 = doc.addObject("Sketcher::SketchObject", "Sketch017")
body9.addObject(sketch18)
sketch18.AttachmentSupport = (doc.getObject("XZ_Plane008"), [""])
sketch18.MapMode = "FlatFace"
sketch18.AttachmentOffset = App.Placement(V(0, 0, -0.065 * 25.4), App.Rotation())
sketch18.addGeometry(Part.Circle(V(29.2, 14.7, 0), V(0, 0, 1), 4.1), False)
sketch18.addConstraint([
    Sketcher.Constraint("Diameter", 0, Q("0.32 in")),
    Sketcher.Constraint("DistanceX", -1, 1, 0, 3, Q("1.15 in")),
    Sketcher.Constraint("DistanceY", -1, 1, 0, 3, Q("0.58 in")),
])
pad13 = doc.addObject("PartDesign::Pad", "Pad012")
body9.addObject(pad13)
pad13.Profile = sketch18
pad13.Length = Q("0.5 in")
pad13.Reversed = True
doc.recompute()

fillet2 = doc.addObject("PartDesign::Fillet", "Fillet001")
body9.addObject(fillet2)
fillet2.Base = (pad13, edges_at(pad13, [(29.21, 14.351, 10.668)]))
fillet2.Radius = Q("0.03125 in")
body10 = doc.addObject("PartDesign::Body", "Body009")

# Sketch on XZ plane
sketch19 = doc.addObject("Sketcher::SketchObject", "Sketch018")
body10.addObject(sketch19)
sketch19.AttachmentSupport = (doc.getObject("XZ_Plane009"), [""])
sketch19.MapMode = "FlatFace"
sketch19.AttachmentOffset = App.Placement(V(0, 0, -0.065 * 25.4), App.Rotation())
sketch19.addGeometry(Part.Circle(V(55.4, 7.6, 0), V(0, 0, 1), 3.2), False)
sketch19.addConstraint([
    Sketcher.Constraint("Diameter", 0, Q("0.25 in")),
    Sketcher.Constraint("DistanceY", -1, 1, 0, 3, Q("0.3 in")),
    Sketcher.Constraint("DistanceX", -1, 1, 0, 3, Q("2.18 in")),
])
pad14 = doc.addObject("PartDesign::Pad", "Pad013")
body10.addObject(pad14)
pad14.Profile = sketch19
pad14.Length = Q("0.48 in")
pad14.Reversed = True
doc.recompute()

fillet3 = doc.addObject("PartDesign::Fillet", "Fillet002")
body10.addObject(fillet3)
fillet3.Base = (pad14, edges_at(pad14, [(55.372, 13.843, 10.795)]))
fillet3.Radius = Q("0.03125 in")
body11 = doc.addObject("PartDesign::Body", "Body010")

# Sketch on YZ plane
sketch20 = doc.addObject("Sketcher::SketchObject", "Sketch019")
body11.addObject(sketch20)
sketch20.AttachmentSupport = (doc.getObject("YZ_Plane010"), [""])
sketch20.MapMode = "FlatFace"
sketch20.AttachmentOffset = App.Placement(V(0, 0, 1.85 * 25.4), App.Rotation())
sketch20.addGeometry(Part.Circle(V(8, 8, 0), V(0, 0, 1), 7), False)
sketch20.addConstraint([
    Sketcher.Constraint("Diameter", 0, Q("0.525 in")),
    Sketcher.Constraint("DistanceY", -1, 1, 0, 3, Q("0.325 in")),
    Sketcher.Constraint("DistanceX", -1, 1, 0, 3, Q("0.3275 in")),
])
pad15 = doc.addObject("PartDesign::Pad", "Pad014")
body11.addObject(pad15)
pad15.Profile = sketch20
pad15.Length = Q("0.25 in")
pad15.Midplane = True
doc.recompute()

fillet4 = doc.addObject("PartDesign::Fillet", "Fillet003")
body11.addObject(fillet4)
fillet4.Base = (pad15, edges_at(pad15, [(50.165, 8.319, 1.587), (43.815, 8.319, 1.587)]))
fillet4.Radius = Q("0.03125 in")

doc.recompute()
